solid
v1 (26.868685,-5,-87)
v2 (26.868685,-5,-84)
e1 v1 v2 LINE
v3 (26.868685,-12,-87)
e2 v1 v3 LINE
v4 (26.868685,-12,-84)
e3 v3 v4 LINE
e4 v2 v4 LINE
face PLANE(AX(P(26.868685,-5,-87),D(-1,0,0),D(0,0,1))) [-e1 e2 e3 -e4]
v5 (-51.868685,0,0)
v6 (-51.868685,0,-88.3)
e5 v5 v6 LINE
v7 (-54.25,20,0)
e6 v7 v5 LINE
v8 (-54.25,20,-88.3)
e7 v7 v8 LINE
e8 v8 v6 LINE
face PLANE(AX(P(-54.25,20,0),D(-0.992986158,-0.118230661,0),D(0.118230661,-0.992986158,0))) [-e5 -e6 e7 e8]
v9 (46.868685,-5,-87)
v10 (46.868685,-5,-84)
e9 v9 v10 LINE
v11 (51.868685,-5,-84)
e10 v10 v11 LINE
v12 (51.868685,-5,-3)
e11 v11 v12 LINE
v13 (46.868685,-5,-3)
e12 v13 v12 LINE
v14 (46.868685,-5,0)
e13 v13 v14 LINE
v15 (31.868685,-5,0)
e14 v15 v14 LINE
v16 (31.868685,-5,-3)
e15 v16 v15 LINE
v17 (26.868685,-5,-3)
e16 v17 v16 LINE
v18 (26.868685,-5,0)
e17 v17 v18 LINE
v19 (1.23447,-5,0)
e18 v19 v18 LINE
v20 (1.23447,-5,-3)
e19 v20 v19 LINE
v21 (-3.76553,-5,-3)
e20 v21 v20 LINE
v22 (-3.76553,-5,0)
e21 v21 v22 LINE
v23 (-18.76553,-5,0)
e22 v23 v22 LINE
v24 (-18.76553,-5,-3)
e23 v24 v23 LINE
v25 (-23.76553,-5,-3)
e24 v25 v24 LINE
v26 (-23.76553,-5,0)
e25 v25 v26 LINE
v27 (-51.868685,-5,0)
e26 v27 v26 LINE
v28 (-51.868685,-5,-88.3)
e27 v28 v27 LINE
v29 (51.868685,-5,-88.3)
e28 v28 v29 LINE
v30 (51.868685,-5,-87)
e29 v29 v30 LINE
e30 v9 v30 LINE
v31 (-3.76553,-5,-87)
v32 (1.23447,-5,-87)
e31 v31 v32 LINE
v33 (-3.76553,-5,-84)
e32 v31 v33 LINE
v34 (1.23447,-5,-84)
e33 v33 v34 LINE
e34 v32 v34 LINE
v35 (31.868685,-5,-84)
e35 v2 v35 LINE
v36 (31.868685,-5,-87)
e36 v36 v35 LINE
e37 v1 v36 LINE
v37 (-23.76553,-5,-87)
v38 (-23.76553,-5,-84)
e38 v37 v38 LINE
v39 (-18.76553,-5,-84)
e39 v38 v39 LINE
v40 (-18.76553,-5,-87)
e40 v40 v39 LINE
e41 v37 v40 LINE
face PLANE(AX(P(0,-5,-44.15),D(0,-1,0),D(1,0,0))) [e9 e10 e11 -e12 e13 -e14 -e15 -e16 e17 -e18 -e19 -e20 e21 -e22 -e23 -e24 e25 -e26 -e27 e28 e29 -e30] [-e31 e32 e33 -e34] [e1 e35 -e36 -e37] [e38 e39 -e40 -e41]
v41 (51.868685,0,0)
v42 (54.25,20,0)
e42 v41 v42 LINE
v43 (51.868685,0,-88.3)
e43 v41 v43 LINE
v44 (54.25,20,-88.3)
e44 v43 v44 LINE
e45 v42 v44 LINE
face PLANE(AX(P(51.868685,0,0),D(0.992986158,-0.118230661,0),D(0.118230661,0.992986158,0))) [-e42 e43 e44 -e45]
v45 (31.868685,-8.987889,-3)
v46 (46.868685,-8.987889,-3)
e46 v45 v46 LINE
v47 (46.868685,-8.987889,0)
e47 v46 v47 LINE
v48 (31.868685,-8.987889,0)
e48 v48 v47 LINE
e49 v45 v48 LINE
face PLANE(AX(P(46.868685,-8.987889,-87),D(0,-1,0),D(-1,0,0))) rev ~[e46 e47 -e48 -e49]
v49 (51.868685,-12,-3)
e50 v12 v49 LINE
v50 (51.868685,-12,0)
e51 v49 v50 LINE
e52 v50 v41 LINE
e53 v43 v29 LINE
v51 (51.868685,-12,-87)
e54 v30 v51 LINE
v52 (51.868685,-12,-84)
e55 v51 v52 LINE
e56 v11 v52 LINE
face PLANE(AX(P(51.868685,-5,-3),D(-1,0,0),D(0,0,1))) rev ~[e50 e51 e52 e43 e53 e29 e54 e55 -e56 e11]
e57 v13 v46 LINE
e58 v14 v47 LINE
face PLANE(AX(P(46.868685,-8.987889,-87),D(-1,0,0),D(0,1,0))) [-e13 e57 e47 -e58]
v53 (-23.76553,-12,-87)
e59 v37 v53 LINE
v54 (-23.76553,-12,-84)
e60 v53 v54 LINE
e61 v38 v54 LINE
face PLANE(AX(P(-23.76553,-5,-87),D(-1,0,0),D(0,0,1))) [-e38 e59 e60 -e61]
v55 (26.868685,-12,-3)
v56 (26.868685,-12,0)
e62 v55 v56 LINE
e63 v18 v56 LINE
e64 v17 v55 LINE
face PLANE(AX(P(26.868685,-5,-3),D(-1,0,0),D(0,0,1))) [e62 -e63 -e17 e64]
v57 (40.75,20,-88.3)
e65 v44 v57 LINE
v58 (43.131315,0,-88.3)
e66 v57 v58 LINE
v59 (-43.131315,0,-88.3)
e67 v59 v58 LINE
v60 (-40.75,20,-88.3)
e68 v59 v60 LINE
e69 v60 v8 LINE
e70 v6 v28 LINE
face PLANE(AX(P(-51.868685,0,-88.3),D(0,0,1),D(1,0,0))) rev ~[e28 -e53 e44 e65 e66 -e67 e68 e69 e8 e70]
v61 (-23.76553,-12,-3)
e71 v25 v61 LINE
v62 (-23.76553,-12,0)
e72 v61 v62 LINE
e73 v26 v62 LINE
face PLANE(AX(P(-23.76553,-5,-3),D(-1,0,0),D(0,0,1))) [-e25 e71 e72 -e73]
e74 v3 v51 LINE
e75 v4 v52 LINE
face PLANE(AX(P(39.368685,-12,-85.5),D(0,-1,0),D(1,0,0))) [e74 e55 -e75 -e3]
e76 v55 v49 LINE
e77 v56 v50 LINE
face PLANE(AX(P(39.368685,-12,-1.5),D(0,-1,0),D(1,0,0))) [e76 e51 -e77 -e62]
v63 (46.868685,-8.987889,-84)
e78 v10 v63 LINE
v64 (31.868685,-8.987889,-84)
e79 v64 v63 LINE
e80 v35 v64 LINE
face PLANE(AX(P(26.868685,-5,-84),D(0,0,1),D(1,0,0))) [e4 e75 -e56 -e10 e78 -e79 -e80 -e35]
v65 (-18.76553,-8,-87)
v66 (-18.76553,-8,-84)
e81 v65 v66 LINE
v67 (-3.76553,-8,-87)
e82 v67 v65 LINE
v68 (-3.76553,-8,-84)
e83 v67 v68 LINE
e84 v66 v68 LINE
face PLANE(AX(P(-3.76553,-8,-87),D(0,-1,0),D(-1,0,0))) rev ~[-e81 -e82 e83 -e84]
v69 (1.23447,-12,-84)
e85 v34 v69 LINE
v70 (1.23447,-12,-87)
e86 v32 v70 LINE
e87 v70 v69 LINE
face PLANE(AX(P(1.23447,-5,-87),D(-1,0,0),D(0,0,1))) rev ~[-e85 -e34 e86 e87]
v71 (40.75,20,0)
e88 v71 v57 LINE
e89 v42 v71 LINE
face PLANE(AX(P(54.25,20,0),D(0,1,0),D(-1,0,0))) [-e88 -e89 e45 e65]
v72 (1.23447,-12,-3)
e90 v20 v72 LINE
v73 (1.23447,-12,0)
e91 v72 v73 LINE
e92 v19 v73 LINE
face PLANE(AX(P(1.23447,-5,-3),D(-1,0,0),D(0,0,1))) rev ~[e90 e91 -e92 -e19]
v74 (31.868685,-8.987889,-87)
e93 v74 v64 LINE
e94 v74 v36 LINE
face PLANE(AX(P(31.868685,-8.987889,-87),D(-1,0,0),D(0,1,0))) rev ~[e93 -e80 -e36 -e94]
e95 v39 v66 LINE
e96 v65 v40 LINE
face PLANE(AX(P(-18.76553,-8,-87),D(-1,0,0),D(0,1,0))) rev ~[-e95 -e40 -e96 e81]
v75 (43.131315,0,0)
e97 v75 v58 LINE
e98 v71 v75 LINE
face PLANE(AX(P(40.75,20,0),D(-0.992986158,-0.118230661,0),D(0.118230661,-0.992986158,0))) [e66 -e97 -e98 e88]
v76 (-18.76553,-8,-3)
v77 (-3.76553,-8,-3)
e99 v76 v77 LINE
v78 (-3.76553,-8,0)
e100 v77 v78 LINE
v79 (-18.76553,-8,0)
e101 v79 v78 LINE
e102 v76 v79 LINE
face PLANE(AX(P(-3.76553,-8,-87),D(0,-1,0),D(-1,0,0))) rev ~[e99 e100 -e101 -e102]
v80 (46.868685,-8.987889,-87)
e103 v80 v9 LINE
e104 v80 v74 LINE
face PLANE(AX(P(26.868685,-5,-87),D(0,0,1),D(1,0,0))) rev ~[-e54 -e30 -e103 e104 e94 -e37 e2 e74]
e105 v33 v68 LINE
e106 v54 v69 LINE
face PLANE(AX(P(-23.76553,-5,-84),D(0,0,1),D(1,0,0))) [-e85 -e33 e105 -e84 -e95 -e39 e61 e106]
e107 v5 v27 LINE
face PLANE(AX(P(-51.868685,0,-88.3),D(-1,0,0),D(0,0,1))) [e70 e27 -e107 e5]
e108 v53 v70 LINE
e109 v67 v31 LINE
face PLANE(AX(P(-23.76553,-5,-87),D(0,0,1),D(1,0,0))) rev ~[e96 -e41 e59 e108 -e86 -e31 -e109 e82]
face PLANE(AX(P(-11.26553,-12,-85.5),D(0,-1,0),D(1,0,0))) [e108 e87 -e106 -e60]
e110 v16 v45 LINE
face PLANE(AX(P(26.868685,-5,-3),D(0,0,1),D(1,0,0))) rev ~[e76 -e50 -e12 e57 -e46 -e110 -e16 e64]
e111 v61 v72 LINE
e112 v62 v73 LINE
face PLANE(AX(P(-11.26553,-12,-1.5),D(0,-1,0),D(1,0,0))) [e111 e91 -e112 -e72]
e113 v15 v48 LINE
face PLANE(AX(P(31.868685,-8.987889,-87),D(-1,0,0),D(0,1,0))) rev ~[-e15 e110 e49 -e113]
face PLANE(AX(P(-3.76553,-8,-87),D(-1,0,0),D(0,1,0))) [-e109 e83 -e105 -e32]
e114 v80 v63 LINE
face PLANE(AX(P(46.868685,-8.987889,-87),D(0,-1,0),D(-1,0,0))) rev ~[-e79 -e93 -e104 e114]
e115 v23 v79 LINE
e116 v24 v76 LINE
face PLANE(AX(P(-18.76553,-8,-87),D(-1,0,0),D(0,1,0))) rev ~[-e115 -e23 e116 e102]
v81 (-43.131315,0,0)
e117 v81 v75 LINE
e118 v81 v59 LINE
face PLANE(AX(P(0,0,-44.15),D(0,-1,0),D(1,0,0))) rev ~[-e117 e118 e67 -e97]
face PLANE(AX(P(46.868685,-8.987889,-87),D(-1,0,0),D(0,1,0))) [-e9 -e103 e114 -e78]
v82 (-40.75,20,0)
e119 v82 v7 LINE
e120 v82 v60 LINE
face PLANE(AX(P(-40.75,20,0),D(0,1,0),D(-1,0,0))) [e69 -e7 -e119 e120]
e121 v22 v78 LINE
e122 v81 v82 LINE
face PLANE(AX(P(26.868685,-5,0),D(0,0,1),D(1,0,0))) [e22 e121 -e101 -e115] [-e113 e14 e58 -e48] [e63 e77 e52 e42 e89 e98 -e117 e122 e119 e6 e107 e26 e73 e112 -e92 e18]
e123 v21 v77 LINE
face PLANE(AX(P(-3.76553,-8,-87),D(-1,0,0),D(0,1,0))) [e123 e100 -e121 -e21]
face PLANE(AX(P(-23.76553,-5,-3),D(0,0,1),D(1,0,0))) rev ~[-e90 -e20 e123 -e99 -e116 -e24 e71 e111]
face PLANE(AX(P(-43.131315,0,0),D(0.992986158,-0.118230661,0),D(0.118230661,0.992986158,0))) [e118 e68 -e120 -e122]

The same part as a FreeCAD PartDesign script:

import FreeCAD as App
import Part
import Sketcher
from FreeCAD import Vector
Q = App.Units.Quantity

doc = App.newDocument("Part")
body = doc.addObject("PartDesign::Body", "Body")

sketch1 = doc.addObject("Sketcher::SketchObject", "Sketch")
body.addObject(sketch1)
sketch1.AttachmentSupport = (doc.XY_Plane, [""])
sketch1.MapMode = "FlatFace"
sketch1.addGeometry([
    Part.LineSegment(Vector(-52, 0, 0), Vector(-43, 0, 0)),
    Part.LineSegment(Vector(-43, 0, 0), Vector(-41, 20, 0)),
    Part.LineSegment(Vector(-41, 20, 0), Vector(-54, 20, 0)),
    Part.LineSegment(Vector(-54, 20, 0), Vector(-52, 0, 0)),
], False)
sketch1.addConstraint([
    Sketcher.Constraint("Coincident", 0, 2, 1, 1),
    Sketcher.Constraint("Coincident", 1, 2, 2, 1),
    Sketcher.Constraint("Coincident", 2, 2, 3, 1),
    Sketcher.Constraint("Coincident", 3, 2, 0, 1),
    Sketcher.Constraint("Horizontal", 0),
    Sketcher.Constraint("Horizontal", 2),
    Sketcher.Constraint("PointOnObject", 0, 2, -1),
    Sketcher.Constraint("Equal", 1, 3),
    Sketcher.Constraint("DistanceX", 2, 2, 2, 1, 13.5),
    Sketcher.Constraint("DistanceY", -1, 1, 1, 2, 20.0),
    Sketcher.Constraint("Angle", 1, Q("83.21 deg")),
    Sketcher.Constraint("DistanceX", 1, 2, -1, 1, 40.75),
])
pad1 = doc.addObject("PartDesign::Pad", "Pad")
body.addObject(pad1)
pad1.Profile = sketch1
pad1.Length = 88.3
pad1.Reversed = True
body2 = doc.addObject("PartDesign::Body", "Body001")

sketch2 = doc.addObject("Sketcher::SketchObject", "Sketch001")
body2.addObject(sketch2)
sketch2.AttachmentSupport = (doc.getObject("XY_Plane001"), [""])
sketch2.MapMode = "FlatFace"
sketch2.addGeometry([
    Part.LineSegment(Vector(41, 20, 0), Vector(43, 0, 0)),
    Part.LineSegment(Vector(43, 0, 0), Vector(52, 0, 0)),
    Part.LineSegment(Vector(52, 0, 0), Vector(54, 20, 0)),
    Part.LineSegment(Vector(54, 20, 0), Vector(41, 20, 0)),
], False)
sketch2.addConstraint([
    Sketcher.Constraint("Coincident", 0, 2, 1, 1),
    Sketcher.Constraint("Coincident", 1, 2, 2, 1),
    Sketcher.Constraint("Coincident", 2, 2, 3, 1),
    Sketcher.Constraint("Coincident", 3, 2, 0, 1),
    Sketcher.Constraint("Horizontal", 1),
    Sketcher.Constraint("Horizontal", 3),
    Sketcher.Constraint("PointOnObject", 0, 2, -1),
    Sketcher.Constraint("Equal", 0, 2),
    Sketcher.Constraint("DistanceX", 3, 2, 3, 1, 13.5),
    Sketcher.Constraint("DistanceY", -1, 1, 2, 2, 20.0),
    Sketcher.Constraint("Angle", 0, Q("-83.21 deg")),
    Sketcher.Constraint("DistanceX", -1, 1, 2, 2, 54.25),
])
pad2 = doc.addObject("PartDesign::Pad", "Pad001")
body2.addObject(pad2)
pad2.Profile = sketch2
pad2.Length = 88.3
pad2.Reversed = True
body.AllowCompound = True
doc.recompute()

boolean = doc.addObject("PartDesign::Boolean", "Boolean")
body.addObject(boolean)
boolean.Type = "Fuse"
boolean.addObjects([body2])

sketch3 = doc.addObject("Sketcher::SketchObject", "Sketch002")
body.addObject(sketch3)
sketch3.AttachmentSupport = (doc.XZ_Plane, [""])
sketch3.MapMode = "FlatFace"
sketch3.addGeometry([
    Part.LineSegment(Vector(-52, 0, 0), Vector(-52, -88, 0)),
    Part.LineSegment(Vector(-52, -88, 0), Vector(52, -88, 0)),
    Part.LineSegment(Vector(52, -88, 0), Vector(52, 0, 0)),
    Part.LineSegment(Vector(52, 0, 0), Vector(-52, 0, 0)),
], False)
sketch3.addConstraint([
    Sketcher.Constraint("Coincident", 0, 2, 1, 1),
    Sketcher.Constraint("Coincident", 1, 2, 2, 1),
    Sketcher.Constraint("Coincident", 2, 2, 3, 1),
    Sketcher.Constraint("Coincident", 3, 2, 0, 1),
    Sketcher.Constraint("Vertical", 0),
    Sketcher.Constraint("Horizontal", 1),
    Sketcher.Constraint("Vertical", 2),
    Sketcher.Constraint("Horizontal", 3),
    Sketcher.Constraint("Symmetric", 2, 2, 3, 2, -1, 1),
    Sketcher.Constraint("DistanceY", 0, 2, 0, 1, 88.3),
    Sketcher.Constraint("DistanceX", 1, 1, 1, 2, 103.737369),
])
pad3 = doc.addObject("PartDesign::Pad", "Pad002")
body.addObject(pad3)
pad3.Profile = sketch3
pad3.Length = 5

sketch4 = doc.addObject("Sketcher::SketchObject", "Sketch003")
body.addObject(sketch4)
sketch4.AttachmentSupport = (doc.XZ_Plane, [""])
sketch4.MapMode = "FlatFace"
sketch4.AttachmentOffset = App.Placement(Vector(0, 0, 5), App.Rotation())
sketch4.addGeometry([
    Part.LineSegment(Vector(26.9, 0, 0), Vector(26.9, -3, 0)),
    Part.LineSegment(Vector(26.9, -3, 0), Vector(51.9, -3, 0)),
    Part.LineSegment(Vector(51.9, -3, 0), Vector(51.9, 0, 0)),
    Part.LineSegment(Vector(51.9, 0, 0), Vector(26.9, 0, 0)),
    Part.LineSegment(Vector(-23.8, 0, 0), Vector(-23.8, -3, 0)),
    Part.LineSegment(Vector(-23.8, -3, 0), Vector(1.2, -3, 0)),
    Part.LineSegment(Vector(1.2, -3, 0), Vector(1.2, 0, 0)),
    Part.LineSegment(Vector(1.2, 0, 0), Vector(-23.8, 0, 0)),
    Part.LineSegment(Vector(26.9, -84, 0), Vector(26.9, -87, 0)),
    Part.LineSegment(Vector(26.9, -87, 0), Vector(51.9, -87, 0)),
    Part.LineSegment(Vector(51.9, -87, 0), Vector(51.9, -84, 0)),
    Part.LineSegment(Vector(51.9, -84, 0), Vector(26.9, -84, 0)),
    Part.LineSegment(Vector(-23.8, -84, 0), Vector(-23.8, -87, 0)),
    Part.LineSegment(Vector(-23.8, -87, 0), Vector(1.2, -87, 0)),
    Part.LineSegment(Vector(1.2, -87, 0), Vector(1.2, -84, 0)),
    Part.LineSegment(Vector(1.2, -84, 0), Vector(-23.8, -84, 0)),
], False)
sketch4.addConstraint([
    Sketcher.Constraint("Coincident", 0, 2, 1, 1),
    Sketcher.Constraint("Coincident", 1, 2, 2, 1),
    Sketcher.Constraint("Coincident", 2, 2, 3, 1),
    Sketcher.Constraint("Coincident", 3, 2, 0, 1),
    Sketcher.Constraint("Coincident", 4, 2, 5, 1),
    Sketcher.Constraint("Coincident", 5, 2, 6, 1),
    Sketcher.Constraint("Coincident", 6, 2, 7, 1),
    Sketcher.Constraint("Coincident", 7, 2, 4, 1),
    Sketcher.Constraint("Coincident", 8, 2, 9, 1),
    Sketcher.Constraint("Coincident", 9, 2, 10, 1),
    Sketcher.Constraint("Coincident", 10, 2, 11, 1),
    Sketcher.Constraint("Coincident", 11, 2, 8, 1),
    Sketcher.Constraint("Coincident", 12, 2, 13, 1),
    Sketcher.Constraint("Coincident", 13, 2, 14, 1),
    Sketcher.Constraint("Coincident", 14, 2, 15, 1),
    Sketcher.Constraint("Coincident", 15, 2, 12, 1),
    Sketcher.Constraint("Vertical", 0),
    Sketcher.Constraint("Horizontal", 1),
    Sketcher.Constraint("Vertical", 2),
    Sketcher.Constraint("Horizontal", 3),
    Sketcher.Constraint("Vertical", 4),
    Sketcher.Constraint("Horizontal", 5),
    Sketcher.Constraint("Vertical", 6),
    Sketcher.Constraint("Horizontal", 7),
    Sketcher.Constraint("Vertical", 8),
    Sketcher.Constraint("Horizontal", 9),
    Sketcher.Constraint("Vertical", 10),
    Sketcher.Constraint("Horizontal", 11),
    Sketcher.Constraint("Vertical", 12),
    Sketcher.Constraint("Horizontal", 13),
    Sketcher.Constraint("Vertical", 14),
    Sketcher.Constraint("Horizontal", 15),
    Sketcher.Constraint("PointOnObject", 2, 2, -1),
    Sketcher.Constraint("PointOnObject", 6, 2, -1),
    Sketcher.Constraint("Horizontal", 1, 2, 4, 2),
    Sketcher.Constraint("Horizontal", 9, 2, 12, 2),
    Sketcher.Constraint("Horizontal", 11, 2, 14, 2),
    Sketcher.Constraint("Vertical", 3, 2, 8, 2),
    Sketcher.Constraint("Vertical", 2, 2, 9, 2),
    Sketcher.Constraint("Vertical", 7, 2, 12, 2),
    Sketcher.Constraint("Vertical", 6, 2, 13, 2),
    Sketcher.Constraint("Equal", 3, 5),
    Sketcher.Constraint("Equal", 6, 8),
    Sketcher.Constraint("DistanceX", 1, 1, 1, 2, 25.0),
    Sketcher.Constraint("DistanceY", 0, 2, 0, 1, 3.0),
    Sketcher.Constraint("DistanceY", 8, 2, -1, 1, 87.0),
    Sketcher.Constraint("DistanceX", 4, 2, -1, 1, 23.76553),
    Sketcher.Constraint("DistanceX", -1, 1, 0, 2, 26.868685),
])
pad4 = doc.addObject("PartDesign::Pad", "Pad003")
body.addObject(pad4)
pad4.Profile = sketch4
pad4.Length = 7

sketch5 = doc.addObject("Sketcher::SketchObject", "Sketch004")
body.addObject(sketch5)
sketch5.AttachmentSupport = (doc.XY_Plane, [""])
sketch5.MapMode = "FlatFace"
sketch5.AttachmentOffset = App.Placement(Vector(0, 0, -87), App.Rotation())
sketch5.addGeometry([
    Part.LineSegment(Vector(-3.8, -5, 0), Vector(-3.8, -8, 0)),
    Part.LineSegment(Vector(-3.8, -8, 0), Vector(-18.8, -8, 0)),
    Part.LineSegment(Vector(-18.8, -8, 0), Vector(-18.8, -5, 0)),
    Part.LineSegment(Vector(-18.8, -5, 0), Vector(-3.8, -5, 0)),
    Part.LineSegment(Vector(46.9, -5, 0), Vector(46.9, -9, 0)),
    Part.LineSegment(Vector(46.9, -9, 0), Vector(31.9, -9, 0)),
    Part.LineSegment(Vector(31.9, -9, 0), Vector(31.9, -5, 0)),
    Part.LineSegment(Vector(31.9, -5, 0), Vector(46.9, -5, 0)),
], False)
sketch5.addConstraint([
    Sketcher.Constraint("Coincident", 0, 2, 1, 1),
    Sketcher.Constraint("Coincident", 1, 2, 2, 1),
    Sketcher.Constraint("Coincident", 2, 2, 3, 1),
    Sketcher.Constraint("Coincident", 3, 2, 0, 1),
    Sketcher.Constraint("Coincident", 4, 2, 5, 1),
    Sketcher.Constraint("Coincident", 5, 2, 6, 1),
    Sketcher.Constraint("Coincident", 6, 2, 7, 1),
    Sketcher.Constraint("Coincident", 7, 2, 4, 1),
    Sketcher.Constraint("Vertical", 0),
    Sketcher.Constraint("Horizontal", 1),
    Sketcher.Constraint("Vertical", 2),
    Sketcher.Constraint("Horizontal", 3),
    Sketcher.Constraint("Vertical", 4),
    Sketcher.Constraint("Horizontal", 5),
    Sketcher.Constraint("Vertical", 6),
    Sketcher.Constraint("Horizontal", 7),
    Sketcher.Constraint("Horizontal", 3, 2, 6, 2),
    Sketcher.Constraint("Equal", 3, 5),
    Sketcher.Constraint("DistanceX", 1, 2, 1, 1, 15.0),
    Sketcher.Constraint("DistanceY", 0, 2, 0, 1, 3.0),
    Sketcher.Constraint("DistanceY", 0, 2, -1, 1, 8.0),
    Sketcher.Constraint("DistanceY", 4, 2, 4, 1, 3.987889),
    Sketcher.Constraint("DistanceX", 0, 2, -1, 1, 3.76553),
    Sketcher.Constraint("DistanceX", -1, 1, 4, 2, 46.868685),
])
pocket1 = doc.addObject("PartDesign::Pocket", "Pocket")
body.addObject(pocket1)
pocket1.Profile = sketch5
pocket1.Length = 97
pocket1.Reversed = True

doc.recompute()
